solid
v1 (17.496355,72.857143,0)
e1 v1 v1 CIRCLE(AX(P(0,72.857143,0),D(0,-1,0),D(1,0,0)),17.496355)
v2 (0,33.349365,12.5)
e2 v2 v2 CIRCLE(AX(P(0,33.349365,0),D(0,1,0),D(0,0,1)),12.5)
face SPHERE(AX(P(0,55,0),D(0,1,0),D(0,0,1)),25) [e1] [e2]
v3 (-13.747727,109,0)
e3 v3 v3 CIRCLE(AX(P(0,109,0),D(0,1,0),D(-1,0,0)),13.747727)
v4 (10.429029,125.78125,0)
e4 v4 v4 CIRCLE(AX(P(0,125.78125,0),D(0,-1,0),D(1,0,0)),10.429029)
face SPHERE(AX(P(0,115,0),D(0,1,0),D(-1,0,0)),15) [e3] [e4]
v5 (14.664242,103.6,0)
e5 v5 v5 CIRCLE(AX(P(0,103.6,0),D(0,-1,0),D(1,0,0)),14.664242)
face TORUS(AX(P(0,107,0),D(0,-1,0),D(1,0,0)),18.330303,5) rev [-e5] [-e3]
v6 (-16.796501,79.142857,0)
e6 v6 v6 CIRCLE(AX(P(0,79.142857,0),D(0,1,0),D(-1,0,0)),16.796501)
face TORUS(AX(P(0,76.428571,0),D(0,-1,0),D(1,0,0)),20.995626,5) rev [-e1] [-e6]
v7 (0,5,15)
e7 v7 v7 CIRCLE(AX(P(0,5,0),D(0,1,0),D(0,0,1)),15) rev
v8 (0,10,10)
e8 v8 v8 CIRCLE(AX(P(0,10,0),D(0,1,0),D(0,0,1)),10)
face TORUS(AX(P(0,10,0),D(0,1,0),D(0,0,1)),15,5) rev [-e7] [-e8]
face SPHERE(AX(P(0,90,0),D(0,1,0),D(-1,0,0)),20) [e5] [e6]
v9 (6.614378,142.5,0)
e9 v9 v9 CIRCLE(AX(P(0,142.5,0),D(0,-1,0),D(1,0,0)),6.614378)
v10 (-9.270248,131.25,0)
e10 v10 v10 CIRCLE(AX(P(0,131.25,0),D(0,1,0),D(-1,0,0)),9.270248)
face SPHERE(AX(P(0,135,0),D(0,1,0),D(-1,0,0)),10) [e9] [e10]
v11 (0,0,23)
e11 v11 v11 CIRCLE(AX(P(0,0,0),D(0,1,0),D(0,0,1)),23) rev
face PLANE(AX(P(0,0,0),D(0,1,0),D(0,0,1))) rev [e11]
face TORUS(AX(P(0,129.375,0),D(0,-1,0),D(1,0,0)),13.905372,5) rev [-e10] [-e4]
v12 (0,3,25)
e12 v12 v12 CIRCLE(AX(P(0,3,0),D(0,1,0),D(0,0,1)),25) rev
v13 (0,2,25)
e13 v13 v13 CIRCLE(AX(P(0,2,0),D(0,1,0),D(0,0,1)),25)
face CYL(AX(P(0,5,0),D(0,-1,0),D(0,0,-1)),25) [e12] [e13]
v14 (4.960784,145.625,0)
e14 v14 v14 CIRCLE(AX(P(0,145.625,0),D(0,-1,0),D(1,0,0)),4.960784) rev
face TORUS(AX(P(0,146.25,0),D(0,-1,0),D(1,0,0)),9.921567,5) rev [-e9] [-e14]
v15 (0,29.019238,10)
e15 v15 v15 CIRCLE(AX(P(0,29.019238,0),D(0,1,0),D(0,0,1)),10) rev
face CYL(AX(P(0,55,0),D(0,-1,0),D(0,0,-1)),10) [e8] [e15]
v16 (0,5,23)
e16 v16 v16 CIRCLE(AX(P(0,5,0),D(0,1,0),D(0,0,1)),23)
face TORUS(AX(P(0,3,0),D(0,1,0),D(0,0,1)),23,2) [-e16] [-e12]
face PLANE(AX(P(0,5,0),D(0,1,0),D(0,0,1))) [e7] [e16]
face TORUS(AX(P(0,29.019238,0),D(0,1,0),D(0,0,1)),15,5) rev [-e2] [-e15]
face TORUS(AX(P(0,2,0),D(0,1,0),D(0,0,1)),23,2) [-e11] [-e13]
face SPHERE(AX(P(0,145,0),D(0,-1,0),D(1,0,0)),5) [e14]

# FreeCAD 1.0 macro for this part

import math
import FreeCAD as App
import Part
import Sketcher

V = App.Vector


def edges_at(feature, points):
    """Names of the edges that pass closest to the given points."""
    edges = feature.Shape.Edges
    near = lambda p: min(range(len(edges)), key=lambda i: edges[i].distToShape(Part.Vertex(*p))[0])
    return sorted({f"Edge{near(p) + 1}" for p in points})

doc = App.newDocument("Part")
params = doc.addObject("Spreadsheet::Sheet", "Params")
for row, (alias, value) in enumerate([
    ("sketch1_diameter", "50 mm"),
    ("pad1_length", "5 mm"),
    ("sketch2_diameter", "20 mm"),
    ("pad2_length", "50 mm"),
    ("fillet_radius", "5 mm"),
    ("sketch3_radius", "25 mm"),
    ("revolution_angle", "360 deg"),
    ("fillet2_radius", "2 mm"),
    ("sketch4_radius", "20 mm"),
    ("revolution2_angle", "360 deg"),
    ("sketch5_radius", "15 mm"),
    ("revolution3_angle", "360 deg"),
    ("sketch6_radius", "10 mm"),
    ("revolution4_angle", "360 deg"),
    ("sketch7_radius", "5 mm"),
    ("revolution5_angle", "360 deg"),
    ("fillet3_radius", "5 mm"),
], start=1):
    params.set(f"A{row}", alias)
    params.set(f"B{row}", "=" + value)
    params.setAlias(f"B{row}", alias)

body = doc.addObject("PartDesign::Body", "Body")

sketch1 = body.newObject("Sketcher::SketchObject", "Sketch")
sketch1.AttachmentSupport = (doc.getObject("XZ_Plane"), [""])
sketch1.MapMode = "FlatFace"
sketch1.addGeometry(Part.Circle(V(0, 0, 0), V(0, 0, 1), 25), False)
sketch1.addConstraint(Sketcher.Constraint("Coincident", 0, 3, -1, 1))
sketch1.addConstraint(Sketcher.Constraint("Diameter", 0, 50.0))
sketch1.setExpression("Constraints[1]", "Params.sketch1_diameter")
pad1 = body.newObject("PartDesign::Pad", "Pad")
pad1.Profile = sketch1
pad1.setExpression("Length", "Params.pad1_length")
pad1.Reversed = True

sketch2 = body.newObject("Sketcher::SketchObject", "Sketch001")
sketch2.AttachmentSupport = (doc.getObject("XZ_Plane"), [""])
sketch2.MapMode = "FlatFace"
sketch2.AttachmentOffset = App.Placement(V(0, 0, -5), App.Rotation())
sketch2.addGeometry(Part.Circle(V(0, 0, 0), V(0, 0, 1), 10), False)
sketch2.addConstraint(Sketcher.Constraint("Coincident", 0, 3, -1, 1))
sketch2.addConstraint(Sketcher.Constraint("Diameter", 0, 20.0))
sketch2.setExpression("Constraints[1]", "Params.sketch2_diameter")
pad2 = body.newObject("PartDesign::Pad", "Pad001")
pad2.Profile = sketch2
pad2.setExpression("Length", "Params.pad2_length")
pad2.Reversed = True
doc.recompute()

fillet = body.newObject("PartDesign::Fillet", "Fillet")
fillet.Base = (pad2, edges_at(pad2, [(0, 5, -10)]))
fillet.setExpression("Radius", "Params.fillet_radius")

sketch3 = body.newObject("Sketcher::SketchObject", "Sketch002")
sketch3.AttachmentSupport = (doc.getObject("XZ_Plane"), [""])
sketch3.MapMode = "FlatFace"
sketch3.AttachmentOffset = App.Placement(V(0, 0, -55), App.Rotation())
sketch3.addGeometry(Part.LineSegment(V(0, -25, 0), V(0, 25, 0)), False)
sketch3.addGeometry(Part.ArcOfCircle(Part.Circle(V(0, 0, 0), V(0, 0, 1), 25), math.radians(-90), math.radians(90)), False)
sketch3.addConstraint(Sketcher.Constraint("Coincident", 0, 1, 1, 1))
sketch3.addConstraint(Sketcher.Constraint("Coincident", 1, 2, 0, 2))
sketch3.addConstraint(Sketcher.Constraint("Vertical", 0))
sketch3.addConstraint(Sketcher.Constraint("Coincident", 1, 3, -1, 1))
sketch3.addConstraint(Sketcher.Constraint("PointOnObject", 0, 1, -2))
sketch3.addConstraint(Sketcher.Constraint("Radius", 1, 25.0))
sketch3.setExpression("Constraints[5]", "Params.sketch3_radius")
revolution = body.newObject("PartDesign::Revolution", "Revolution")
revolution.Profile = sketch3
revolution.ReferenceAxis = (sketch3, ["V_Axis"])
revolution.setExpression("Angle", "Params.revolution_angle")
doc.recompute()

fillet2 = body.newObject("PartDesign::Fillet", "Fillet001")
fillet2.Base = (revolution, edges_at(revolution, [(0, 0, -25), (0, 5, -25)]))
fillet2.setExpression("Radius", "Params.fillet2_radius")

sketch4 = body.newObject("Sketcher::SketchObject", "Sketch003")
sketch4.AttachmentSupport = (doc.getObject("XZ_Plane"), [""])
sketch4.MapMode = "FlatFace"
sketch4.AttachmentOffset = App.Placement(V(0, 0, -90), App.Rotation())
sketch4.addGeometry(Part.LineSegment(V(0, -20, 0), V(0, 20, 0)), False)
sketch4.addGeometry(Part.ArcOfCircle(Part.Circle(V(0, 0, 0), V(0, 0, 1), 20), math.radians(-90), math.radians(90)), False)
sketch4.addConstraint(Sketcher.Constraint("Coincident", 0, 1, 1, 1))
sketch4.addConstraint(Sketcher.Constraint("Coincident", 1, 2, 0, 2))
sketch4.addConstraint(Sketcher.Constraint("Vertical", 0))
sketch4.addConstraint(Sketcher.Constraint("Coincident", 1, 3, -1, 1))
sketch4.addConstraint(Sketcher.Constraint("PointOnObject", 0, 1, -2))
sketch4.addConstraint(Sketcher.Constraint("Radius", 1, 20.0))
sketch4.setExpression("Constraints[5]", "Params.sketch4_radius")
revolution2 = body.newObject("PartDesign::Revolution", "Revolution001")
revolution2.Profile = sketch4
revolution2.ReferenceAxis = (sketch4, ["V_Axis"])
revolution2.setExpression("Angle", "Params.revolution2_angle")

sketch5 = body.newObject("Sketcher::SketchObject", "Sketch004")
sketch5.AttachmentSupport = (doc.getObject("XZ_Plane"), [""])
sketch5.MapMode = "FlatFace"
sketch5.AttachmentOffset = App.Placement(V(0, 0, -115), App.Rotation())
sketch5.addGeometry(Part.LineSegment(V(0, -15, 0), V(0, 15, 0)), False)
sketch5.addGeometry(Part.ArcOfCircle(Part.Circle(V(0, 0, 0), V(0, 0, 1), 15), math.radians(-90), math.radians(90)), False)
sketch5.addConstraint(Sketcher.Constraint("Coincident", 0, 1, 1, 1))
sketch5.addConstraint(Sketcher.Constraint("Coincident", 1, 2, 0, 2))
sketch5.addConstraint(Sketcher.Constraint("Vertical", 0))
sketch5.addConstraint(Sketcher.Constraint("Coincident", 1, 3, -1, 1))
sketch5.addConstraint(Sketcher.Constraint("PointOnObject", 0, 1, -2))
sketch5.addConstraint(Sketcher.Constraint("Radius", 1, 15.0))
sketch5.setExpression("Constraints[5]", "Params.sketch5_radius")
revolution3 = body.newObject("PartDesign::Revolution", "Revolution002")
revolution3.Profile = sketch5
revolution3.ReferenceAxis = (sketch5, ["V_Axis"])
revolution3.setExpression("Angle", "Params.revolution3_angle")

sketch6 = body.newObject("Sketcher::SketchObject", "Sketch005")
sketch6.AttachmentSupport = (doc.getObject("XZ_Plane"), [""])
sketch6.MapMode = "FlatFace"
sketch6.AttachmentOffset = App.Placement(V(0, 0, -135), App.Rotation())
sketch6.addGeometry(Part.LineSegment(V(0, -10, 0), V(0, 10, 0)), False)
sketch6.addGeometry(Part.ArcOfCircle(Part.Circle(V(0, 0, 0), V(0, 0, 1), 10), math.radians(-90), math.radians(90)), False)
sketch6.addConstraint(Sketcher.Constraint("Coincident", 0, 1, 1, 1))
sketch6.addConstraint(Sketcher.Constraint("Coincident", 1, 2, 0, 2))
sketch6.addConstraint(Sketcher.Constraint("Vertical", 0))
sketch6.addConstraint(Sketcher.Constraint("Coincident", 1, 3, -1, 1))
sketch6.addConstraint(Sketcher.Constraint("PointOnObject", 0, 1, -2))
sketch6.addConstraint(Sketcher.Constraint("Radius", 1, 10.0))
sketch6.setExpression("Constraints[5]", "Params.sketch6_radius")
revolution4 = body.newObject("PartDesign::Revolution", "Revolution003")
revolution4.Profile = sketch6
revolution4.ReferenceAxis = (sketch6, ["V_Axis"])
revolution4.setExpression("Angle", "Params.revolution4_angle")

sketch7 = body.newObject("Sketcher::SketchObject", "Sketch006")
sketch7.AttachmentSupport = (doc.getObject("XZ_Plane"), [""])
sketch7.MapMode = "FlatFace"
sketch7.AttachmentOffset = App.Placement(V(0, 0, -145), App.Rotation())
sketch7.addGeometry(Part.LineSegment(V(0, -5, 0), V(0, 5, 0)), False)
sketch7.addGeometry(Part.ArcOfCircle(Part.Circle(V(0, 0, 0), V(0, 0, 1), 5), math.radians(-90), math.radians(90)), False)
sketch7.addConstraint(Sketcher.Constraint("Coincident", 0, 1, 1, 1))
sketch7.addConstraint(Sketcher.Constraint("Coincident", 1, 2, 0, 2))
sketch7.addConstraint(Sketcher.Constraint("Vertical", 0))
sketch7.addConstraint(Sketcher.Constraint("Coincident", 1, 3, -1, 1))
sketch7.addConstraint(Sketcher.Constraint("PointOnObject", 0, 1, -2))
sketch7.addConstraint(Sketcher.Constraint("Radius", 1, 5.0))
sketch7.setExpression("Constraints[5]", "Params.sketch7_radius")
revolution5 = body.newObject("PartDesign::Revolution", "Revolution004")
revolution5.Profile = sketch7
revolution5.ReferenceAxis = (sketch7, ["V_Axis"])
revolution5.setExpression("Angle", "Params.revolution5_angle")
doc.recompute()

fillet3 = body.newObject("PartDesign::Fillet", "Fillet002")
fillet3.Base = (revolution5, edges_at(revolution5, [
    (0, 32.087, -10),
    (13.997, 75.714, 0),
    (12, 106, 0),
    (7.262, 128.125, 0),
    (0, 143.75, -4.841),
]))
fillet3.setExpression("Radius", "Params.fillet3_radius")

doc.recompute()
